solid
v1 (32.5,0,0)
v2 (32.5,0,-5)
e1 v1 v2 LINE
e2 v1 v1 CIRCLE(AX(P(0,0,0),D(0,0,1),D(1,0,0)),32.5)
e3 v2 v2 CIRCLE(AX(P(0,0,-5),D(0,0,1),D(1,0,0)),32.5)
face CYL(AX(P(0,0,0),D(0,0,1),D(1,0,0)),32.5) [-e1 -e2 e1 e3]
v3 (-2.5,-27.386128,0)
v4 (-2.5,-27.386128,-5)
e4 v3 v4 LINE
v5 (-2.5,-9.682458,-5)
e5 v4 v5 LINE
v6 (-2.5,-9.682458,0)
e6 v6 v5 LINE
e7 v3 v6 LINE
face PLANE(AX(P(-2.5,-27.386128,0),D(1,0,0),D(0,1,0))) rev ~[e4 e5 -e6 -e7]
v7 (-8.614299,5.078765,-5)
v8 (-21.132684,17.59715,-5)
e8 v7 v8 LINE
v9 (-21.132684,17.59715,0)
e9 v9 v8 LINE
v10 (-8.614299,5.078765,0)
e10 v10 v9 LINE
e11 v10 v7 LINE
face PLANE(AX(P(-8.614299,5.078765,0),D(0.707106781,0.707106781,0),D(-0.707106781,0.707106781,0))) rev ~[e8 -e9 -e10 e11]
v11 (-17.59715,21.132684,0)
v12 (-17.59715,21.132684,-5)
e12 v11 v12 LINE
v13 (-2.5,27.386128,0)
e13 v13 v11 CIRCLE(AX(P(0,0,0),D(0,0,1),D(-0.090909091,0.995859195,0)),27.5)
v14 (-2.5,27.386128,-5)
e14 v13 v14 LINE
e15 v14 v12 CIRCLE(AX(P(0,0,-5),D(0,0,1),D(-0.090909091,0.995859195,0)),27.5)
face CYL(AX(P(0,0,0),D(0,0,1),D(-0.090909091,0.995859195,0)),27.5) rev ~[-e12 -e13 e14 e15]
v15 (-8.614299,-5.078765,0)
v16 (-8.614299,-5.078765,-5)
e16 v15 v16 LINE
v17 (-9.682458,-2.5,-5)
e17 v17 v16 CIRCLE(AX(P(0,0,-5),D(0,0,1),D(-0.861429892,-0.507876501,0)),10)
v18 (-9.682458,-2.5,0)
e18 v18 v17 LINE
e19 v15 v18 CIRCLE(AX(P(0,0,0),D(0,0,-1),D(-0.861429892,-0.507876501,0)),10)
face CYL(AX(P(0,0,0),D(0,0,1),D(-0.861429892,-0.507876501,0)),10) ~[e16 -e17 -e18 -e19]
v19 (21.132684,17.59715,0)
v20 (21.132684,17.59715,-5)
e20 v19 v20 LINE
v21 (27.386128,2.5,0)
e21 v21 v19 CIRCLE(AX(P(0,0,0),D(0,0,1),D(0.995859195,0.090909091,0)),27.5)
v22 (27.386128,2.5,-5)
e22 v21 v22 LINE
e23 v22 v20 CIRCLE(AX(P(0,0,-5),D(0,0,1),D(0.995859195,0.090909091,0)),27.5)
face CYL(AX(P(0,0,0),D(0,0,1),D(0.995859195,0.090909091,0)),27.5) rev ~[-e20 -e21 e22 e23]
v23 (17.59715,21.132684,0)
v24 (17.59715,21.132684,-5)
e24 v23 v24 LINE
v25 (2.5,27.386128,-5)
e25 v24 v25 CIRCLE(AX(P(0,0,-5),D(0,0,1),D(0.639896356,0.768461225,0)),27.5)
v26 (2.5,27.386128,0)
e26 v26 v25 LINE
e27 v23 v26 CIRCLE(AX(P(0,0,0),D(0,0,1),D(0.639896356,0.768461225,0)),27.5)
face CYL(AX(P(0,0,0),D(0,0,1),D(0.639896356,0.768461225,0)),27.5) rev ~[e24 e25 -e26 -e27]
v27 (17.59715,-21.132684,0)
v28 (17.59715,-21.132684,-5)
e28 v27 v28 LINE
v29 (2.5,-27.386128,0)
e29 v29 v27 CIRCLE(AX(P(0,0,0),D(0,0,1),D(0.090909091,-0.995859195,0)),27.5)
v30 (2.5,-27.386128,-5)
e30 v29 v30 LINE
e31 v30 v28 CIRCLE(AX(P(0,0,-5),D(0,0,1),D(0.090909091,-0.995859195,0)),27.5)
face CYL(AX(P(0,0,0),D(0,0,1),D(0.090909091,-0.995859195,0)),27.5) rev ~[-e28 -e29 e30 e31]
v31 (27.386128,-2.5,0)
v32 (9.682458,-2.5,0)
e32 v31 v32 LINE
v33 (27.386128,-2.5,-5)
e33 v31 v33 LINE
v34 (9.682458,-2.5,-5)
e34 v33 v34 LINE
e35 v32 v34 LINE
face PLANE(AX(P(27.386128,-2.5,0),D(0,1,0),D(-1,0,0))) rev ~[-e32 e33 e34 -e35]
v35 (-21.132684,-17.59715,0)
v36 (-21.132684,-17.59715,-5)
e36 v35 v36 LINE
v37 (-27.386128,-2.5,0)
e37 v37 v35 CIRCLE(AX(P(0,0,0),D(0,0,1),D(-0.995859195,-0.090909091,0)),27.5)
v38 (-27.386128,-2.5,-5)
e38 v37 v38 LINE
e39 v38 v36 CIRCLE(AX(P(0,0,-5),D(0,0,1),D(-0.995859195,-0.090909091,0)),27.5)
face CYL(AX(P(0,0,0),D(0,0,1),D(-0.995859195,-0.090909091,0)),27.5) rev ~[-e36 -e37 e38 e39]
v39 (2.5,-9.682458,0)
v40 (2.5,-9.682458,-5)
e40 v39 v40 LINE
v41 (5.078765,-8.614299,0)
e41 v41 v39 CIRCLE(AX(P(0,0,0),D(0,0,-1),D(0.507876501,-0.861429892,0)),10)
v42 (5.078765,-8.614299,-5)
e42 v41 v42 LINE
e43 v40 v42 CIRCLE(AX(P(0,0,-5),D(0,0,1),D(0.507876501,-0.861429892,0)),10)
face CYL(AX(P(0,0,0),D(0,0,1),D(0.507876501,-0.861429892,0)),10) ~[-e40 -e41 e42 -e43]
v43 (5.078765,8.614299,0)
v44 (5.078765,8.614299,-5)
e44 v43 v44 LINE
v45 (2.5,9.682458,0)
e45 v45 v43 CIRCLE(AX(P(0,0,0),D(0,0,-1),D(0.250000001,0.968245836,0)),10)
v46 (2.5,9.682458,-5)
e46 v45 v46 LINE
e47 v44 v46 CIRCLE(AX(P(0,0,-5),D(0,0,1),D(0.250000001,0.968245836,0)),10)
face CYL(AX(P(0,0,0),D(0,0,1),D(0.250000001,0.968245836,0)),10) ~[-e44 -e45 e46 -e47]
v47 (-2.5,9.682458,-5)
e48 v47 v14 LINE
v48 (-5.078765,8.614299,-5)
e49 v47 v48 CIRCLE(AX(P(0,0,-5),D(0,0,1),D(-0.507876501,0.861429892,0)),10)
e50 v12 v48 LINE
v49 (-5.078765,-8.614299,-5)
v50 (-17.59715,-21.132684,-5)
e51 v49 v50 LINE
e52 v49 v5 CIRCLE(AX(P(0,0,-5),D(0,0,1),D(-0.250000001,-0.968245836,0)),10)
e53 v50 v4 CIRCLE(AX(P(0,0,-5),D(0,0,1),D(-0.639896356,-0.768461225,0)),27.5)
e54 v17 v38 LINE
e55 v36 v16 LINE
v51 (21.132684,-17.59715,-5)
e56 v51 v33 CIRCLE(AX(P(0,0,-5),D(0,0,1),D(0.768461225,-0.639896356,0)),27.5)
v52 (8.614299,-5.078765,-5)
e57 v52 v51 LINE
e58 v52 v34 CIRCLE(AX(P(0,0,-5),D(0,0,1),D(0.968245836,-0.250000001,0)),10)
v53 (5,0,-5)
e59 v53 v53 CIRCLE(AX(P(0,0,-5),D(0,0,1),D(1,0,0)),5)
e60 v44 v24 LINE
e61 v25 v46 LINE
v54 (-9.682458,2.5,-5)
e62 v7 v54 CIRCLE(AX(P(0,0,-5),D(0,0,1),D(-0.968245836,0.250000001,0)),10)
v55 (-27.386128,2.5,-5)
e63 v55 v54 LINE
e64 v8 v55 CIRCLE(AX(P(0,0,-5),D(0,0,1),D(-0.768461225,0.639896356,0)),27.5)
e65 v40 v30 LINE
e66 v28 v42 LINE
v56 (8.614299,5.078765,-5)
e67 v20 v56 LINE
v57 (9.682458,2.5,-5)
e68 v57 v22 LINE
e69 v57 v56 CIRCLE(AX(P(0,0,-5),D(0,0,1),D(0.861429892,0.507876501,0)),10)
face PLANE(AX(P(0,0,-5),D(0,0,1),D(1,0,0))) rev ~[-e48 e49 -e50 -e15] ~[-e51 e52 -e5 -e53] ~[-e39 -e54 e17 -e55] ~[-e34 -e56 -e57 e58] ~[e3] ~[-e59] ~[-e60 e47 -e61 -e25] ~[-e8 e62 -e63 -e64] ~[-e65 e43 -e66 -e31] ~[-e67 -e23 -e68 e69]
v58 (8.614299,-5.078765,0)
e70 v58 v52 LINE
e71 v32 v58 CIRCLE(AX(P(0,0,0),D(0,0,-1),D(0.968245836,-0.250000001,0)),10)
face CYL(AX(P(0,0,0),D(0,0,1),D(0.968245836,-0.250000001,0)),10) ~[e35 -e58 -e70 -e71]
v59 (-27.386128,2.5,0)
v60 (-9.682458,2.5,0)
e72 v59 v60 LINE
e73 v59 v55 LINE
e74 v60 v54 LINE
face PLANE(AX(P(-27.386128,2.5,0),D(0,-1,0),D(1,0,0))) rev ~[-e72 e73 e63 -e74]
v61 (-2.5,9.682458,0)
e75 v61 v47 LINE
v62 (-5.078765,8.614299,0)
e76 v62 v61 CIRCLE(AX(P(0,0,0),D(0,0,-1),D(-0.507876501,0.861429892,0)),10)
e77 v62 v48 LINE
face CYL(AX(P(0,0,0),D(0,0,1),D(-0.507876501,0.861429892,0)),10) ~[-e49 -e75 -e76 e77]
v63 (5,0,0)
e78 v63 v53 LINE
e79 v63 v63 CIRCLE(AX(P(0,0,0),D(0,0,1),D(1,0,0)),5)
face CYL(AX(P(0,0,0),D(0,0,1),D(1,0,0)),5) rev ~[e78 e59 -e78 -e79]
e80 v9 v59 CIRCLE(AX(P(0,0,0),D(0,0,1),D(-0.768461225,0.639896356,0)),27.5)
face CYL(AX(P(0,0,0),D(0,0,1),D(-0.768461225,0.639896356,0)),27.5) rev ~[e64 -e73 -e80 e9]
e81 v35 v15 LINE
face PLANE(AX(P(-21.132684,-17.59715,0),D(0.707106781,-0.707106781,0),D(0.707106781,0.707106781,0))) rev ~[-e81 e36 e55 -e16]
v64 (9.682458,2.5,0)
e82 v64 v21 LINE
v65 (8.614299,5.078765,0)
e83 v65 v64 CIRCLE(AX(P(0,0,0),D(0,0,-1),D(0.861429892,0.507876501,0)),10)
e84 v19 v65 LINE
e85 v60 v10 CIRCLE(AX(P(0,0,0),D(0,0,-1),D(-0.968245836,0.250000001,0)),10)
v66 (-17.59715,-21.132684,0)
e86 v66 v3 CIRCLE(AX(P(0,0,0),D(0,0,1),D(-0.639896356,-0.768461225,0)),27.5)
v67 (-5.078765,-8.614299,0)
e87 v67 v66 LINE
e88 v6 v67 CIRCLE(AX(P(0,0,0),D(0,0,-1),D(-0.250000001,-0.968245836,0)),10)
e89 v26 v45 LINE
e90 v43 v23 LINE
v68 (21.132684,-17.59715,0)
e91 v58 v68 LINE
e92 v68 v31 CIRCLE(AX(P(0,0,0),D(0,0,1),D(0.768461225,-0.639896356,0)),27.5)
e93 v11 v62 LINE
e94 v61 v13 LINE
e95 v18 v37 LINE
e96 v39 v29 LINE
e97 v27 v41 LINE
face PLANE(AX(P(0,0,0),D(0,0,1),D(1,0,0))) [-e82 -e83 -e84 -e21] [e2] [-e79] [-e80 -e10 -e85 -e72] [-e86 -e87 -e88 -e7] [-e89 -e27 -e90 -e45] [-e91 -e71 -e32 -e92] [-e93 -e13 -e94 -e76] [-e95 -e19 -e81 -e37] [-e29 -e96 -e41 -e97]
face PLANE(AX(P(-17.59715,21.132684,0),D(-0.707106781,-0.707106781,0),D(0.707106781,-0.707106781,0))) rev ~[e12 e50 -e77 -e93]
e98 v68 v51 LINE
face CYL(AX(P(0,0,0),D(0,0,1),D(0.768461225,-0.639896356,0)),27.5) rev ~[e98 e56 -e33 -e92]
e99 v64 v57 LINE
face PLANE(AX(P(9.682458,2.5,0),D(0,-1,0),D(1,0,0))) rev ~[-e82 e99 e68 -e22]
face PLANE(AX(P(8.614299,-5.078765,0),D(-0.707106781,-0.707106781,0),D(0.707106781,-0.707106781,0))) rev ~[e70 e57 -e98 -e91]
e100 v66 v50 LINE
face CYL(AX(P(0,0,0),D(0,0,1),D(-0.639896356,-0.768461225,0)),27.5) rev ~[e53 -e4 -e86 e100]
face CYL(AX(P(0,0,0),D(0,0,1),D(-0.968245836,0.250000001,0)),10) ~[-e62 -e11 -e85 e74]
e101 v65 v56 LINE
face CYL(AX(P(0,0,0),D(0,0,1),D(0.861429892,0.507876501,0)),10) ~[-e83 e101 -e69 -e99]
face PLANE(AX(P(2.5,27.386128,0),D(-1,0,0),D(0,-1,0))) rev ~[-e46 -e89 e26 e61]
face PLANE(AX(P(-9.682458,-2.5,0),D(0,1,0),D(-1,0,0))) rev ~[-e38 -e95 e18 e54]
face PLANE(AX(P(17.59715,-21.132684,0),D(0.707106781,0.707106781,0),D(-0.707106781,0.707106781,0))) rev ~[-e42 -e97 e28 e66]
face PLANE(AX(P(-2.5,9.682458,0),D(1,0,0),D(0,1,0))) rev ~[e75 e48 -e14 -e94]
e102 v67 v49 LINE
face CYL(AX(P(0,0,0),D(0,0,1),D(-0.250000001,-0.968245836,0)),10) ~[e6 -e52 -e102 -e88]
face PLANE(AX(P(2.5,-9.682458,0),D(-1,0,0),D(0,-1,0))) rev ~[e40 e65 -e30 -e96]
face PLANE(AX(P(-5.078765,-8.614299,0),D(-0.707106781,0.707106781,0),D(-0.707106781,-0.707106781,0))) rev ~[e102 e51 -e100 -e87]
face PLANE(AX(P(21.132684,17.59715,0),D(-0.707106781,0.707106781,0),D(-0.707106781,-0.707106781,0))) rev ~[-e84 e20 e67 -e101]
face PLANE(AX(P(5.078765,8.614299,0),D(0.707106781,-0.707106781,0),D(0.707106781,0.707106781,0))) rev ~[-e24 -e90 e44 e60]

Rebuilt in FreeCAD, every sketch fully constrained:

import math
import FreeCAD as App
import Part
import Sketcher
Q = App.Units.Quantity

doc = App.newDocument("Part")
body = doc.addObject("PartDesign::Body", "Body")

# Sketch on XY plane
sketch1 = body.newObject("Sketcher::SketchObject", "Sketch")
sketch1.AttachmentSupport = (doc.getObject("XY_Plane"), [""])
sketch1.MapMode = "FlatFace"
sketch1.addGeometry([
    Part.Circle(App.Vector(0, 0, 0), App.Vector(0, 0, 1), 32.5),
    Part.Circle(App.Vector(0, 0, 0), App.Vector(0, 0, 1), 5),
], False)
sketch1.addConstraint([
    Sketcher.Constraint("Coincident", 0, 3, -1, 1),
    Sketcher.Constraint("Coincident", 1, 3, -1, 1),
    Sketcher.Constraint("Diameter", 0, Q("65 mm")),
    Sketcher.Constraint("Diameter", 1, Q("10 mm")),
])
pad1 = body.newObject("PartDesign::Pad", "Pad")
pad1.Profile = sketch1
pad1.Length = 5
pad1.Reversed = True

# Sketch on XY plane
sketch2 = body.newObject("Sketcher::SketchObject", "Sketch001")
sketch2.AttachmentSupport = (doc.getObject("XY_Plane"), [""])
sketch2.MapMode = "FlatFace"
sketch2.addGeometry([
    Part.LineSegment(App.Vector(2.5, 27.386128, 0), App.Vector(2.5, 9.682458, 0)),
    Part.ArcOfCircle(Part.Circle(App.Vector(0, 0, 0), App.Vector(0, 0, 1), 10), math.radians(59.477512), math.radians(75.522488)),
    Part.LineSegment(App.Vector(5.078765, 8.614299, 0), App.Vector(17.59715, 21.132684, 0)),
    Part.ArcOfCircle(Part.Circle(App.Vector(0, 0, 0), App.Vector(0, 0, 1), 27.5), math.radians(50.215909), math.radians(84.784091)),
], False)
sketch2.addConstraint([
    Sketcher.Constraint("Coincident", 0, 2, 1, 2),
    Sketcher.Constraint("Coincident", 1, 1, 2, 1),
    Sketcher.Constraint("Coincident", 2, 2, 3, 1),
    Sketcher.Constraint("Coincident", 3, 2, 0, 1),
    Sketcher.Constraint("Vertical", 0),
    Sketcher.Constraint("Coincident", 1, 3, -1, 1),
    Sketcher.Constraint("Coincident", 3, 3, -1, 1),
    Sketcher.Constraint("Radius", 1, Q("10 mm")),
    Sketcher.Constraint("Radius", 3, Q("27.5 mm")),
    Sketcher.Constraint("Angle", 2, Q("45 deg")),
    Sketcher.Constraint("DistanceX", -1, 1, 0, 2, Q("2.5 mm")),
    Sketcher.Constraint("DistanceY", -1, 1, 1, 1, Q("8.614299 mm")),
])
pocket1 = body.newObject("PartDesign::Pocket", "Pocket")
pocket1.Profile = sketch2
pocket1.Type = "ThroughAll"
doc.recompute()

polarpattern = body.newObject("PartDesign::PolarPattern", "PolarPattern")
polarpattern.Originals = [pocket1]
polarpattern.Axis = (doc.getObject("Z_Axis"), [""])
polarpattern.Angle = 360
polarpattern.Occurrences = 8
body.Tip = polarpattern

doc.recompute()
